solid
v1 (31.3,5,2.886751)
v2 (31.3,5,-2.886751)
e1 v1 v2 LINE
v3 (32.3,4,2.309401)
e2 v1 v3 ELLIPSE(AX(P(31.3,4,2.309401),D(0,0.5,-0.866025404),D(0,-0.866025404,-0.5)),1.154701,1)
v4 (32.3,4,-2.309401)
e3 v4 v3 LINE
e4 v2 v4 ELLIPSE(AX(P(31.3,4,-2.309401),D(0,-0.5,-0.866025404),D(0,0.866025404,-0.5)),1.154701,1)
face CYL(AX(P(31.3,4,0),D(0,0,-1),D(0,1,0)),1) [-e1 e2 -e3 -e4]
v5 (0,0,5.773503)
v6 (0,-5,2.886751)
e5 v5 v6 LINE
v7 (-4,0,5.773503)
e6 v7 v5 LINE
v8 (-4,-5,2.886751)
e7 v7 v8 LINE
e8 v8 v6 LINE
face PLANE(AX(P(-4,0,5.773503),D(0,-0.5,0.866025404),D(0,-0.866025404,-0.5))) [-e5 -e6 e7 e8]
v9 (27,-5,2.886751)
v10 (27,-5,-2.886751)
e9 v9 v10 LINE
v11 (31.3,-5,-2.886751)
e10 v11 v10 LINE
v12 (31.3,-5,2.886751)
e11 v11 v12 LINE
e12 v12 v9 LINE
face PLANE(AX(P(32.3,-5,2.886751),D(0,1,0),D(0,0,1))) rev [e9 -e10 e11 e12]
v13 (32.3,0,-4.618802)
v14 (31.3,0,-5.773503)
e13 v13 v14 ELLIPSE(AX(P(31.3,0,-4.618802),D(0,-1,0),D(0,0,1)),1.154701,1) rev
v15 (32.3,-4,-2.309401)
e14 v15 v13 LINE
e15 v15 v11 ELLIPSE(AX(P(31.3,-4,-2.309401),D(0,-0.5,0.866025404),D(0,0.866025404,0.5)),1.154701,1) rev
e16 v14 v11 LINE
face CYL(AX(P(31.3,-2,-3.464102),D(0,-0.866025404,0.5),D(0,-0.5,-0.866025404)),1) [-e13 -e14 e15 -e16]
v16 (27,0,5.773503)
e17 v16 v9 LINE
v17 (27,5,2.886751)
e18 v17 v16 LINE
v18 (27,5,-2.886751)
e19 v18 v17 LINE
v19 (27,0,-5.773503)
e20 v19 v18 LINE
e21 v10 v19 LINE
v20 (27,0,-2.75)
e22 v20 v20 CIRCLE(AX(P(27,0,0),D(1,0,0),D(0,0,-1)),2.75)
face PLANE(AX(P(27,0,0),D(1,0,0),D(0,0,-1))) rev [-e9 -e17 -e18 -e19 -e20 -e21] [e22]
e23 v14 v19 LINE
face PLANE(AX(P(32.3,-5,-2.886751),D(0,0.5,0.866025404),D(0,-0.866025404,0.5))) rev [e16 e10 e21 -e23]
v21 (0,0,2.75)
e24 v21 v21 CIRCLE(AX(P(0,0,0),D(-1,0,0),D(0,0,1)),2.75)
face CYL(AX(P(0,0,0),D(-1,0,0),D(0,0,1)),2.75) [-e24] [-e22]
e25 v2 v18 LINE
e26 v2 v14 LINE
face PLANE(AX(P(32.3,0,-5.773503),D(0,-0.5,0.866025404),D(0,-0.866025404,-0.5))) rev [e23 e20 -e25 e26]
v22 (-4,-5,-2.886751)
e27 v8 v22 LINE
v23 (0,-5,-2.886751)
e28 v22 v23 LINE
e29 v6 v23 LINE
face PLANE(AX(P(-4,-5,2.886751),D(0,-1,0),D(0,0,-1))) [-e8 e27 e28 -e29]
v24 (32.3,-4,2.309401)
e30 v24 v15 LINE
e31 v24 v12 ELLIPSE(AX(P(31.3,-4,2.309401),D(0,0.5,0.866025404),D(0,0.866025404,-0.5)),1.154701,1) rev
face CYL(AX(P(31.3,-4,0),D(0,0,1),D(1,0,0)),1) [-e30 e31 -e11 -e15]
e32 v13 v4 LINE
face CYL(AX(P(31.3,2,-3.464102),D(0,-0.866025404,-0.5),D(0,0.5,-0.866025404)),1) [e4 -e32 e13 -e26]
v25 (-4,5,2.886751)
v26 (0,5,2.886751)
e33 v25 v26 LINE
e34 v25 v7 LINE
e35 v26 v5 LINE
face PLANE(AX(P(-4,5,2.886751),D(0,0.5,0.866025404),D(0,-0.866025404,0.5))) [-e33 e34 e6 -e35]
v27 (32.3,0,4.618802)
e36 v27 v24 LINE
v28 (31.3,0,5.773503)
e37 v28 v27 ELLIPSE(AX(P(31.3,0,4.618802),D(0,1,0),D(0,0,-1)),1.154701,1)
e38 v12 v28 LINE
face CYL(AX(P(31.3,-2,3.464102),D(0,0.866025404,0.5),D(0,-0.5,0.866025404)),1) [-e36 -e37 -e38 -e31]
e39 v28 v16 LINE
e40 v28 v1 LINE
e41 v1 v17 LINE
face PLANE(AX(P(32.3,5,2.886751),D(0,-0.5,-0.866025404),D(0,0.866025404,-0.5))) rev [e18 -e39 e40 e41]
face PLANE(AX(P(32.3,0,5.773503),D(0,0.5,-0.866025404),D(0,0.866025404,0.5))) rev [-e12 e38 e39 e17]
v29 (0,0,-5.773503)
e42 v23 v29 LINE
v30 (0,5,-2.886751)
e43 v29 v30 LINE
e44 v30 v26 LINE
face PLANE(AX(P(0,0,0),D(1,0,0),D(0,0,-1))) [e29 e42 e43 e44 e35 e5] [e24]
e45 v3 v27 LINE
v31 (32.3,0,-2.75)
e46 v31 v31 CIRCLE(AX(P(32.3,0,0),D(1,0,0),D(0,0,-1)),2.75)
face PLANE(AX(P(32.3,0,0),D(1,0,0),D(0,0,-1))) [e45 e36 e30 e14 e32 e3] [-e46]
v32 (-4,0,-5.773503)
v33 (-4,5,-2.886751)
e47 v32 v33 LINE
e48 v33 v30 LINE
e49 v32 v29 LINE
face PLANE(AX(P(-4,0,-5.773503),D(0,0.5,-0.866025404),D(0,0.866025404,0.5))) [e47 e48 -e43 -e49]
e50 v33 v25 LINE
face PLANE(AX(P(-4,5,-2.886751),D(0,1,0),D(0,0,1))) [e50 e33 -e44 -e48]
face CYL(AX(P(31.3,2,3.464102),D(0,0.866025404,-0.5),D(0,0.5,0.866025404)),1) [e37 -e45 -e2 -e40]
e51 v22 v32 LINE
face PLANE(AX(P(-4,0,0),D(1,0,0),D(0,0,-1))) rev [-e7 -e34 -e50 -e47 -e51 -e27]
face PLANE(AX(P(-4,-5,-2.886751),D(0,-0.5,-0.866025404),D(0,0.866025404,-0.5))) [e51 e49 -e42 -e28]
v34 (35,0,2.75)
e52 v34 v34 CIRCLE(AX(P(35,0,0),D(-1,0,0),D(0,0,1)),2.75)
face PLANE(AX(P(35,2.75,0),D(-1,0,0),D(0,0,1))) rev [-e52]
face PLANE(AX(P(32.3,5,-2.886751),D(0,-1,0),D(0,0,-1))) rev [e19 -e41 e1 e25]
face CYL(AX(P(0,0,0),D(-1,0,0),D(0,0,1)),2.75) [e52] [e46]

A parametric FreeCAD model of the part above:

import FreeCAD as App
import Part
import Sketcher
from FreeCAD import Vector
Q = App.Units.Quantity


def edges_at(feature, points):
    """Names of the edges that pass closest to the given points."""
    edges = feature.Shape.Edges
    near = lambda p: min(range(len(edges)), key=lambda i: edges[i].distToShape(Part.Vertex(*p))[0])
    return sorted({f"Edge{near(p) + 1}" for p in points})

doc = App.newDocument("Part")
body = doc.addObject("PartDesign::Body", "Body")

sketch1 = body.newObject("Sketcher::SketchObject", "Sketch")
sketch1.AttachmentSupport = (doc.getObject("XY_Plane"), [""])
sketch1.MapMode = "FlatFace"
sketch1.addGeometry(Part.LineSegment(Vector(0, 2.8, 0), Vector(0, 0, 0)), False)
sketch1.addGeometry(Part.LineSegment(Vector(0, 0, 0), Vector(35, 0, 0)), False)
sketch1.addGeometry(Part.LineSegment(Vector(35, 0, 0), Vector(35, 2.8, 0)), False)
sketch1.addGeometry(Part.LineSegment(Vector(35, 2.8, 0), Vector(0, 2.8, 0)), False)
sketch1.addConstraint(Sketcher.Constraint("Coincident", 0, 2, 1, 1))
sketch1.addConstraint(Sketcher.Constraint("Coincident", 1, 2, 2, 1))
sketch1.addConstraint(Sketcher.Constraint("Coincident", 2, 2, 3, 1))
sketch1.addConstraint(Sketcher.Constraint("Coincident", 3, 2, 0, 1))
sketch1.addConstraint(Sketcher.Constraint("Vertical", 0))
sketch1.addConstraint(Sketcher.Constraint("Horizontal", 1))
sketch1.addConstraint(Sketcher.Constraint("Vertical", 2))
sketch1.addConstraint(Sketcher.Constraint("Horizontal", 3))
sketch1.addConstraint(Sketcher.Constraint("Coincident", 0, 2, -1, 1))
sketch1.addConstraint(Sketcher.Constraint("DistanceX", 1, 1, 1, 2, Q("35 mm")))
sketch1.addConstraint(Sketcher.Constraint("DistanceY", 0, 2, 0, 1, Q("2.75 mm")))
revolution = body.newObject("PartDesign::Revolution", "Revolution")
revolution.Profile = sketch1
revolution.ReferenceAxis = (sketch1, ["H_Axis"])
revolution.Angle = 360

sketch2 = body.newObject("Sketcher::SketchObject", "Sketch001")
sketch2.AttachmentSupport = (doc.getObject("YZ_Plane"), [""])
sketch2.MapMode = "FlatFace"
sketch2.addGeometry(Part.LineSegment(Vector(0, -6, 0), Vector(5, -3, 0)), False)
sketch2.addGeometry(Part.LineSegment(Vector(5, -3, 0), Vector(5, 3, 0)), False)
sketch2.addGeometry(Part.LineSegment(Vector(5, 3, 0), Vector(0, 6, 0)), False)
sketch2.addGeometry(Part.LineSegment(Vector(0, 6, 0), Vector(-5, 3, 0)), False)
sketch2.addGeometry(Part.LineSegment(Vector(-5, 3, 0), Vector(-5, -3, 0)), False)
sketch2.addGeometry(Part.LineSegment(Vector(-5, -3, 0), Vector(0, -6, 0)), False)
sketch2.addConstraint(Sketcher.Constraint("Coincident", 0, 2, 1, 1))
sketch2.addConstraint(Sketcher.Constraint("Coincident", 1, 2, 2, 1))
sketch2.addConstraint(Sketcher.Constraint("Coincident", 2, 2, 3, 1))
sketch2.addConstraint(Sketcher.Constraint("Coincident", 3, 2, 4, 1))
sketch2.addConstraint(Sketcher.Constraint("Coincident", 4, 2, 5, 1))
sketch2.addConstraint(Sketcher.Constraint("Coincident", 5, 2, 0, 1))
sketch2.addConstraint(Sketcher.Constraint("Vertical", 1))
sketch2.addConstraint(Sketcher.Constraint("Vertical", 4))
sketch2.addConstraint(Sketcher.Constraint("Symmetric", 0, 2, 3, 2, -1, 1))
sketch2.addConstraint(Sketcher.Constraint("Symmetric", 2, 2, 5, 2, -1, 1))
sketch2.addConstraint(Sketcher.Constraint("PointOnObject", 2, 2, -2))
sketch2.addConstraint(Sketcher.Constraint("Parallel", 2, 5))
sketch2.addConstraint(Sketcher.Constraint("Horizontal", 1, 2, 3, 2))
sketch2.addConstraint(Sketcher.Constraint("Angle", 0, Q("30 deg")))
sketch2.addConstraint(Sketcher.Constraint("DistanceX", -1, 1, 0, 2, Q("5 mm")))
sketch2.addConstraint(Sketcher.Constraint("DistanceY", 1, 1, 1, 2, Q("5.773503 mm")))
pad1 = body.newObject("PartDesign::Pad", "Pad")
pad1.Profile = sketch2
pad1.Length = 4
pad1.Reversed = True

sketch3 = body.newObject("Sketcher::SketchObject", "Sketch002")
sketch3.AttachmentSupport = (doc.getObject("YZ_Plane"), [""])
sketch3.MapMode = "FlatFace"
sketch3.AttachmentOffset = App.Placement(Vector(0, 0, 27), App.Rotation())
sketch3.addGeometry(Part.LineSegment(Vector(0, -6, 0), Vector(5, -3, 0)), False)
sketch3.addGeometry(Part.LineSegment(Vector(5, -3, 0), Vector(5, 3, 0)), False)
sketch3.addGeometry(Part.LineSegment(Vector(5, 3, 0), Vector(0, 6, 0)), False)
sketch3.addGeometry(Part.LineSegment(Vector(0, 6, 0), Vector(-5, 3, 0)), False)
sketch3.addGeometry(Part.LineSegment(Vector(-5, 3, 0), Vector(-5, -3, 0)), False)
sketch3.addGeometry(Part.LineSegment(Vector(-5, -3, 0), Vector(0, -6, 0)), False)
sketch3.addConstraint(Sketcher.Constraint("Coincident", 0, 2, 1, 1))
sketch3.addConstraint(Sketcher.Constraint("Coincident", 1, 2, 2, 1))
sketch3.addConstraint(Sketcher.Constraint("Coincident", 2, 2, 3, 1))
sketch3.addConstraint(Sketcher.Constraint("Coincident", 3, 2, 4, 1))
sketch3.addConstraint(Sketcher.Constraint("Coincident", 4, 2, 5, 1))
sketch3.addConstraint(Sketcher.Constraint("Coincident", 5, 2, 0, 1))
sketch3.addConstraint(Sketcher.Constraint("Vertical", 1))
sketch3.addConstraint(Sketcher.Constraint("Vertical", 4))
sketch3.addConstraint(Sketcher.Constraint("Symmetric", 0, 2, 3, 2, -1, 1))
sketch3.addConstraint(Sketcher.Constraint("Symmetric", 2, 2, 5, 2, -1, 1))
sketch3.addConstraint(Sketcher.Constraint("PointOnObject", 2, 2, -2))
sketch3.addConstraint(Sketcher.Constraint("Parallel", 2, 5))
sketch3.addConstraint(Sketcher.Constraint("Horizontal", 1, 2, 3, 2))
sketch3.addConstraint(Sketcher.Constraint("Angle", 0, Q("30 deg")))
sketch3.addConstraint(Sketcher.Constraint("DistanceX", -1, 1, 0, 2, Q("5 mm")))
sketch3.addConstraint(Sketcher.Constraint("DistanceY", 1, 1, 1, 2, Q("5.773503 mm")))
pad2 = body.newObject("PartDesign::Pad", "Pad001")
pad2.Profile = sketch3
pad2.Length = 5.3
doc.recompute()

fillet = body.newObject("PartDesign::Fillet", "Fillet")
fillet.Base = (pad2, edges_at(pad2, [
    (32.3, -2.5, -4.33),
    (32.3, 2.5, -4.33),
    (32.3, 5, 0),
    (32.3, 2.5, 4.33),
    (32.3, -2.5, 4.33),
    (32.3, -5, 0),
]))
fillet.Radius = 1

doc.recompute()
